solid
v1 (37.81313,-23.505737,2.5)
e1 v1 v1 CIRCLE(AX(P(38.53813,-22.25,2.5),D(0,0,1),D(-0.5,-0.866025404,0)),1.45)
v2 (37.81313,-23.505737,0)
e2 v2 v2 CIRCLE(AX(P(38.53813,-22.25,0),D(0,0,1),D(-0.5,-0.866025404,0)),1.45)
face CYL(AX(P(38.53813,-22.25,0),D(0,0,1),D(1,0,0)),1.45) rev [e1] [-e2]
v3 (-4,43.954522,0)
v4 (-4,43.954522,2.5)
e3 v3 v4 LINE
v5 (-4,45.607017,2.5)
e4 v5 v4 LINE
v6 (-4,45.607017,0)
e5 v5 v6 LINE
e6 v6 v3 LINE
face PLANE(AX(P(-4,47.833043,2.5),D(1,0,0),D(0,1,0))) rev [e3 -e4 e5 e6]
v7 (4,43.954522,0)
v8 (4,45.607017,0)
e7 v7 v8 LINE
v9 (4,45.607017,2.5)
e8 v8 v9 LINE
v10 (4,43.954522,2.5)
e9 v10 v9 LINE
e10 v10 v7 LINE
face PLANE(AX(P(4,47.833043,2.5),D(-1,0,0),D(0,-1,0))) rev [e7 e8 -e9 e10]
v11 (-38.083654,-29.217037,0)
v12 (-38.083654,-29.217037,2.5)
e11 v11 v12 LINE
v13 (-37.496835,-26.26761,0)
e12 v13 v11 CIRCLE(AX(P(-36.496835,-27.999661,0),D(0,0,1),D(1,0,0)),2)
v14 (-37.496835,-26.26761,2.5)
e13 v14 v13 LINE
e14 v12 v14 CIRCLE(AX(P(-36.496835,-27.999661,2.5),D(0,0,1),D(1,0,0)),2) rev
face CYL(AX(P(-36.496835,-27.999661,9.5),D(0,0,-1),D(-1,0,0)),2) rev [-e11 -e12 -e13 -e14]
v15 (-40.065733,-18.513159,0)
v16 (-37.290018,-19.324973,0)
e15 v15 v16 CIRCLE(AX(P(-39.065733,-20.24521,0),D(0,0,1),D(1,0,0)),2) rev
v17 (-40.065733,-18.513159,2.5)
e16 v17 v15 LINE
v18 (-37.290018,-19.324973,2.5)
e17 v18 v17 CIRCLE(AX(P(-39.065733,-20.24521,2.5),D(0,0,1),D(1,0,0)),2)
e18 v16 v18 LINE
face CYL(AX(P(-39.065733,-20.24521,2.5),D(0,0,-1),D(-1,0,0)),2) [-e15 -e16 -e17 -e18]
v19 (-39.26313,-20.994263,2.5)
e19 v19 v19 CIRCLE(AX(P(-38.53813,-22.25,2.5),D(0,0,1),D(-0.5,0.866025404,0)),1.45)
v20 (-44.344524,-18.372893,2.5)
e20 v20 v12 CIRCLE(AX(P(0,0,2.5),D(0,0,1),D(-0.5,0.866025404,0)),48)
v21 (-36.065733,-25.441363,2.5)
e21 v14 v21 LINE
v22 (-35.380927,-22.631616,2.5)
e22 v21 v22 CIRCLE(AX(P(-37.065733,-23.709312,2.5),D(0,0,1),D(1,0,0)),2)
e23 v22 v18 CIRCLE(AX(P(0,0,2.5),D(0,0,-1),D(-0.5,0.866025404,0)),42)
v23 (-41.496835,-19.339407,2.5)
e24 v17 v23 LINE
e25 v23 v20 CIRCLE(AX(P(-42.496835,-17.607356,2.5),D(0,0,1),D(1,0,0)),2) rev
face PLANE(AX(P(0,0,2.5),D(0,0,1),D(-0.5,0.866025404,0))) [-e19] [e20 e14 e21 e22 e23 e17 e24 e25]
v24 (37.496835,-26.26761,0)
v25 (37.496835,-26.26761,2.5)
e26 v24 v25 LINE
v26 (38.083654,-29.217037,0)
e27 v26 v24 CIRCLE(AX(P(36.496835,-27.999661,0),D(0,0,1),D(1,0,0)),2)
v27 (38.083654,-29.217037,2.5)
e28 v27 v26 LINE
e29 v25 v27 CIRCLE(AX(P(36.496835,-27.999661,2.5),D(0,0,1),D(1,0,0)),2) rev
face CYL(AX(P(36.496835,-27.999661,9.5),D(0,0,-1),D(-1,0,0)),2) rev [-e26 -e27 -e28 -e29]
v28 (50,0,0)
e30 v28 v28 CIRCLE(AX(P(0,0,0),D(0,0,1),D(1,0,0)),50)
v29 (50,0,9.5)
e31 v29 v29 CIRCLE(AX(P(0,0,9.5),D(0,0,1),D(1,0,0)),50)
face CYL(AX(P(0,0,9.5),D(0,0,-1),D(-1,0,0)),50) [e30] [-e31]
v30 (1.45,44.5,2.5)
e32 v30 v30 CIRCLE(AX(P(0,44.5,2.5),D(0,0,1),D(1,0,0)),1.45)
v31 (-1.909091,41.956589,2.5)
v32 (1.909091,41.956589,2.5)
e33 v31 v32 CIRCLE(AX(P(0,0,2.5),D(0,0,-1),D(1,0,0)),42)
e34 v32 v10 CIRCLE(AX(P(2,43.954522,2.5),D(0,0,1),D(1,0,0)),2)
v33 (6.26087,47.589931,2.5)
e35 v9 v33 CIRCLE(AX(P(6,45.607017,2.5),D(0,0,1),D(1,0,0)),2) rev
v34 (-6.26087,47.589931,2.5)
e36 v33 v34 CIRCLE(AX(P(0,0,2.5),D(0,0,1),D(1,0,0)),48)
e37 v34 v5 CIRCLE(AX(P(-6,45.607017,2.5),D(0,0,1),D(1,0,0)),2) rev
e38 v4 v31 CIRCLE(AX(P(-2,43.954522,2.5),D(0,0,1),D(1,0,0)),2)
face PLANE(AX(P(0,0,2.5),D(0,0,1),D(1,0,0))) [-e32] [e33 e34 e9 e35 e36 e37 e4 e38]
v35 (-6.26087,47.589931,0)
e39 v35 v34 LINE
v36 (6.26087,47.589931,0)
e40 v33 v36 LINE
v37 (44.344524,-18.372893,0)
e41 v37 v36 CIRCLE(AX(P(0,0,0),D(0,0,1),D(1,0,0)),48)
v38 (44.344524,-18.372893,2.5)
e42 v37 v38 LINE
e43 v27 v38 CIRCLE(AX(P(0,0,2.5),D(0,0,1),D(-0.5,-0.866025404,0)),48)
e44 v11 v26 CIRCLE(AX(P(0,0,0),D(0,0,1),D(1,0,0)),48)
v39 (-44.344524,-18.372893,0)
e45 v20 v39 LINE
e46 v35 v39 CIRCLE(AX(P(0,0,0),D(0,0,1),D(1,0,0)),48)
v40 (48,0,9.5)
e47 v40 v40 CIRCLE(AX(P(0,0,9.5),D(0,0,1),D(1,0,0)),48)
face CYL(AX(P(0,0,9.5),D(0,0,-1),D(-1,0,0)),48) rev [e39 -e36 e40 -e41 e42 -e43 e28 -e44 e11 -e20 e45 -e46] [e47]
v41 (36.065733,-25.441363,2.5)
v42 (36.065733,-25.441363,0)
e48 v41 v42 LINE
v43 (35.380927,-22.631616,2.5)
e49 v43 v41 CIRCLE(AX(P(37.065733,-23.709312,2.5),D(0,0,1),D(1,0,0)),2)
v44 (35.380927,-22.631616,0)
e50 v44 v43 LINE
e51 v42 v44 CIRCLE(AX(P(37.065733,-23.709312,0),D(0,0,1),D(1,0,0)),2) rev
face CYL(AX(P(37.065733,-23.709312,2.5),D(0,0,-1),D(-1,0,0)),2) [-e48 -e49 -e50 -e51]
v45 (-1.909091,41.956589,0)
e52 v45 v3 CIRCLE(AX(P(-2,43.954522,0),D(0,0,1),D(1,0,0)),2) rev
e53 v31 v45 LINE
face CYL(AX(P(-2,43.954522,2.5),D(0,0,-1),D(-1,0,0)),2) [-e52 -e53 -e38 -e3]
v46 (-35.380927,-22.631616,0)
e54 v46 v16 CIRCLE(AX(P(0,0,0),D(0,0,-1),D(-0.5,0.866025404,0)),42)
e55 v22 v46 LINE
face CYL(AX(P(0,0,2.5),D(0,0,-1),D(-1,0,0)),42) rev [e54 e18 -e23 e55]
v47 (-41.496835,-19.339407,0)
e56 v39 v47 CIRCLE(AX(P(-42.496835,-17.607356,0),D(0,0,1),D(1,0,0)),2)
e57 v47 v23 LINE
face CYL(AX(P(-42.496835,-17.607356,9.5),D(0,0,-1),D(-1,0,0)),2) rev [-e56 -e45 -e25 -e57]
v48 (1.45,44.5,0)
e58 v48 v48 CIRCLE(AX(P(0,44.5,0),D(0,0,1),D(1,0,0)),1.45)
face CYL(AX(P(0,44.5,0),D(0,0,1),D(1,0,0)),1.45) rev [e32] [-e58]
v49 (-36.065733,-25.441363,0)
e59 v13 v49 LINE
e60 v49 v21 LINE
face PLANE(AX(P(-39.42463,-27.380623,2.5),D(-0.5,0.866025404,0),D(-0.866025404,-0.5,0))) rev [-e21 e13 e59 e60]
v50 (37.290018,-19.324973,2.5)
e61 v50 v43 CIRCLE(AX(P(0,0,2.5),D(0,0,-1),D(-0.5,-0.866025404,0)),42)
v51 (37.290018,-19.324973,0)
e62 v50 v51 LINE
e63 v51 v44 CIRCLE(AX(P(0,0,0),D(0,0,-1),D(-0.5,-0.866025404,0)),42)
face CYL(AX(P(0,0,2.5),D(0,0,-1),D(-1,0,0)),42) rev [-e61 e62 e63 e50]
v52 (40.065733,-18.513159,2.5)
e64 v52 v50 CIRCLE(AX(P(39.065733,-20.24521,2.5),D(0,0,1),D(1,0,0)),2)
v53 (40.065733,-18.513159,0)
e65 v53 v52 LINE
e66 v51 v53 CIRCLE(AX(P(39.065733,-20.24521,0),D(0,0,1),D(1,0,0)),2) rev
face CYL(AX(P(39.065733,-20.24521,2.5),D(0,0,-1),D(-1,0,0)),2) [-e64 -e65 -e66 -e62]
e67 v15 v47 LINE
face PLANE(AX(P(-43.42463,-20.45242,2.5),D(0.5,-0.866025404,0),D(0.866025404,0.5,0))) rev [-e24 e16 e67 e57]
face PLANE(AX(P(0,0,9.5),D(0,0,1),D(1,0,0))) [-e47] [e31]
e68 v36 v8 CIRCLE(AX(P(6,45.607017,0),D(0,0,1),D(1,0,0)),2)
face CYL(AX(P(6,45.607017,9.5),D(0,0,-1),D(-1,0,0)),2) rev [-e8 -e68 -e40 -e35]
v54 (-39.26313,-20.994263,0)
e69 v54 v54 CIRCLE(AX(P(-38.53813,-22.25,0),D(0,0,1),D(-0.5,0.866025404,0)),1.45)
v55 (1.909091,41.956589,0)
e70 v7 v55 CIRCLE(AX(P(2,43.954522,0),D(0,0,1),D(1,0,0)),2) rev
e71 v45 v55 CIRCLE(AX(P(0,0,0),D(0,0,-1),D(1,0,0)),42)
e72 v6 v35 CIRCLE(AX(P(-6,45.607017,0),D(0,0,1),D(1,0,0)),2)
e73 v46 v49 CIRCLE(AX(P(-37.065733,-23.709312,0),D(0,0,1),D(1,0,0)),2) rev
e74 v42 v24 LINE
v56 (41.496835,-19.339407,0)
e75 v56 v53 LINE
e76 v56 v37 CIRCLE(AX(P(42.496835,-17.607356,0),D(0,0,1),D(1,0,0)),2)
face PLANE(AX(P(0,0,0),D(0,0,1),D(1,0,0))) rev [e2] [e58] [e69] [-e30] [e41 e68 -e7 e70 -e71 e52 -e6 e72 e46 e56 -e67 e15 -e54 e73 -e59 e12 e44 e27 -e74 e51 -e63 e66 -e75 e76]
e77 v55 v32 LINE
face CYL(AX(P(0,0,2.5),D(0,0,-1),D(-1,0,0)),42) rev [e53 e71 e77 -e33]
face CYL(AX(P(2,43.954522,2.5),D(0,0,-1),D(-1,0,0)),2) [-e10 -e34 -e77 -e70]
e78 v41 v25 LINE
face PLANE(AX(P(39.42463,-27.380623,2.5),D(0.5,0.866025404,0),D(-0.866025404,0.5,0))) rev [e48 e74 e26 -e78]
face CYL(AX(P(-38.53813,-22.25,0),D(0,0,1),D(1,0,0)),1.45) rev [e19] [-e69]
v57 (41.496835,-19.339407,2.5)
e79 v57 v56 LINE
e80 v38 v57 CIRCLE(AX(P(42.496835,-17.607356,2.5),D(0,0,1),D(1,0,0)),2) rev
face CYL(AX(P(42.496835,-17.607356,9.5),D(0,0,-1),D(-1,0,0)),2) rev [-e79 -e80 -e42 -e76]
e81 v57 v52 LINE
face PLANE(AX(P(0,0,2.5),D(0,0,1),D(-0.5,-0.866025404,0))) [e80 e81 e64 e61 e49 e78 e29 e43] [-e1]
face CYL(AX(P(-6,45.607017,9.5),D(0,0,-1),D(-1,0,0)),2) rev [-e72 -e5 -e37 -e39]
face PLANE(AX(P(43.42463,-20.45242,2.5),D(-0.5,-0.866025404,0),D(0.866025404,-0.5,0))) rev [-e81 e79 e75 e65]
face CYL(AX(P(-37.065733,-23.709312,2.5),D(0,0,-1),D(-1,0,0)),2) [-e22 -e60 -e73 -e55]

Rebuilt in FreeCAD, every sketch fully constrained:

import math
import FreeCAD as App
import Part
import Sketcher


def edges_at(feature, points):
    """Names of the edges that pass closest to the given points."""
    edges = feature.Shape.Edges
    near = lambda p: min(range(len(edges)), key=lambda i: edges[i].distToShape(Part.Vertex(*p))[0])
    return sorted({f"Edge{near(p) + 1}" for p in points})

doc = App.newDocument("Part")
body = doc.addObject("PartDesign::Body", "Body")

# Sketch on XY plane
sketch1 = doc.addObject("Sketcher::SketchObject", "Sketch")
body.addObject(sketch1)
sketch1.AttachmentSupport = (doc.XY_Plane, [""])
sketch1.MapMode = "FlatFace"
sketch1.addGeometry([
    Part.Circle(App.Vector(0, 0, 0), App.Vector(0, 0, 1), 50),
    Part.Circle(App.Vector(0, 0, 0), App.Vector(0, 0, 1), 48),
], False)
sketch1.addConstraint([
    Sketcher.Constraint("Coincident", 0, 3, -1, 1),
    Sketcher.Constraint("Coincident", 1, 3, -1, 1),
    Sketcher.Constraint("Diameter", 0, 100.0),
    Sketcher.Constraint("Diameter", 1, 96.0),
])
pad1 = doc.addObject("PartDesign::Pad", "Pad")
body.addObject(pad1)
pad1.Profile = sketch1
pad1.Length = 9.5

# Sketch on XY plane
sketch2 = doc.addObject("Sketcher::SketchObject", "Sketch001")
body.addObject(sketch2)
sketch2.AttachmentSupport = (doc.XY_Plane, [""])
sketch2.MapMode = "FlatFace"
sketch2.addGeometry([
    Part.LineSegment(App.Vector(-4, 47.833043, 0), App.Vector(-4, 41.80909, 0)),
    Part.ArcOfCircle(Part.Circle(App.Vector(0, 0, 0), App.Vector(0, 0, 1), 42), math.radians(84.534976), math.radians(95.465024)),
    Part.LineSegment(App.Vector(4, 41.80909, 0), App.Vector(4, 47.833043, 0)),
    Part.ArcOfCircle(Part.Circle(App.Vector(0, 0, 0), App.Vector(0, 0, 1), 48), math.radians(85.219808), math.radians(94.780192)),
], False)
sketch2.addConstraint([
    Sketcher.Constraint("Coincident", 0, 2, 1, 2),
    Sketcher.Constraint("Coincident", 1, 1, 2, 1),
    Sketcher.Constraint("Coincident", 2, 2, 3, 1),
    Sketcher.Constraint("Coincident", 3, 2, 0, 1),
    Sketcher.Constraint("Vertical", 0),
    Sketcher.Constraint("Vertical", 2),
    Sketcher.Constraint("Coincident", 1, 3, -1, 1),
    Sketcher.Constraint("Coincident", 3, 3, -1, 1),
    Sketcher.Constraint("Horizontal", 0, 2, 1, 1),
    Sketcher.Constraint("Radius", 1, 42.0),
    Sketcher.Constraint("Radius", 3, 48.0),
    Sketcher.Constraint("DistanceX", 0, 2, -1, 1, 4.0),
])
pad2 = doc.addObject("PartDesign::Pad", "Pad001")
body.addObject(pad2)
pad2.Profile = sketch2
pad2.Length = 2.5

# Sketch on XY plane
sketch3 = doc.addObject("Sketcher::SketchObject", "Sketch002")
body.addObject(sketch3)
sketch3.AttachmentSupport = (doc.XY_Plane, [""])
sketch3.MapMode = "FlatFace"
sketch3.AttachmentOffset = App.Placement(App.Vector(0, 0, 2.5), App.Rotation())
sketch3.addGeometry(Part.Circle(App.Vector(0, 44.5, 0), App.Vector(0, 0, 1), 1.45), False)
sketch3.addConstraint([
    Sketcher.Constraint("PointOnObject", 0, 3, -2),
    Sketcher.Constraint("Diameter", 0, 2.9),
    Sketcher.Constraint("DistanceY", -1, 1, 0, 3, 44.5),
])
pocket1 = doc.addObject("PartDesign::Pocket", "Pocket")
body.addObject(pocket1)
pocket1.Profile = sketch3
pocket1.Length = 2.5
doc.recompute()

fillet = doc.addObject("PartDesign::Fillet", "Fillet")
body.addObject(fillet)
fillet.Base = (pocket1, edges_at(pocket1, [
    (4, 47.833, 1.25),
    (-4, 47.833, 1.25),
    (-4, 41.809, 1.25),
    (4, 41.809, 1.25),
]))
fillet.Radius = 2
doc.recompute()

polarpattern = doc.addObject("PartDesign::PolarPattern", "PolarPattern")
body.addObject(polarpattern)
polarpattern.Originals = [pad2, pocket1]
polarpattern.Axis = (doc.Z_Axis, [""])
polarpattern.Angle = 360
polarpattern.Occurrences = 3
body.Tip = polarpattern
doc.recompute()

fillet2 = doc.addObject("PartDesign::Fillet", "Fillet001")
body.addObject(fillet2)
fillet2.Base = (polarpattern, edges_at(polarpattern, [
    (-43.425, -20.452, 1.25),
    (-39.425, -27.381, 1.25),
    (-34.208, -24.369, 1.25),
    (-38.208, -17.44, 1.25),
    (39.425, -27.381, 1.25),
    (43.425, -20.452, 1.25),
    (38.208, -17.44, 1.25),
    (34.208, -24.369, 1.25),
]))
fillet2.Radius = 2

doc.recompute()
